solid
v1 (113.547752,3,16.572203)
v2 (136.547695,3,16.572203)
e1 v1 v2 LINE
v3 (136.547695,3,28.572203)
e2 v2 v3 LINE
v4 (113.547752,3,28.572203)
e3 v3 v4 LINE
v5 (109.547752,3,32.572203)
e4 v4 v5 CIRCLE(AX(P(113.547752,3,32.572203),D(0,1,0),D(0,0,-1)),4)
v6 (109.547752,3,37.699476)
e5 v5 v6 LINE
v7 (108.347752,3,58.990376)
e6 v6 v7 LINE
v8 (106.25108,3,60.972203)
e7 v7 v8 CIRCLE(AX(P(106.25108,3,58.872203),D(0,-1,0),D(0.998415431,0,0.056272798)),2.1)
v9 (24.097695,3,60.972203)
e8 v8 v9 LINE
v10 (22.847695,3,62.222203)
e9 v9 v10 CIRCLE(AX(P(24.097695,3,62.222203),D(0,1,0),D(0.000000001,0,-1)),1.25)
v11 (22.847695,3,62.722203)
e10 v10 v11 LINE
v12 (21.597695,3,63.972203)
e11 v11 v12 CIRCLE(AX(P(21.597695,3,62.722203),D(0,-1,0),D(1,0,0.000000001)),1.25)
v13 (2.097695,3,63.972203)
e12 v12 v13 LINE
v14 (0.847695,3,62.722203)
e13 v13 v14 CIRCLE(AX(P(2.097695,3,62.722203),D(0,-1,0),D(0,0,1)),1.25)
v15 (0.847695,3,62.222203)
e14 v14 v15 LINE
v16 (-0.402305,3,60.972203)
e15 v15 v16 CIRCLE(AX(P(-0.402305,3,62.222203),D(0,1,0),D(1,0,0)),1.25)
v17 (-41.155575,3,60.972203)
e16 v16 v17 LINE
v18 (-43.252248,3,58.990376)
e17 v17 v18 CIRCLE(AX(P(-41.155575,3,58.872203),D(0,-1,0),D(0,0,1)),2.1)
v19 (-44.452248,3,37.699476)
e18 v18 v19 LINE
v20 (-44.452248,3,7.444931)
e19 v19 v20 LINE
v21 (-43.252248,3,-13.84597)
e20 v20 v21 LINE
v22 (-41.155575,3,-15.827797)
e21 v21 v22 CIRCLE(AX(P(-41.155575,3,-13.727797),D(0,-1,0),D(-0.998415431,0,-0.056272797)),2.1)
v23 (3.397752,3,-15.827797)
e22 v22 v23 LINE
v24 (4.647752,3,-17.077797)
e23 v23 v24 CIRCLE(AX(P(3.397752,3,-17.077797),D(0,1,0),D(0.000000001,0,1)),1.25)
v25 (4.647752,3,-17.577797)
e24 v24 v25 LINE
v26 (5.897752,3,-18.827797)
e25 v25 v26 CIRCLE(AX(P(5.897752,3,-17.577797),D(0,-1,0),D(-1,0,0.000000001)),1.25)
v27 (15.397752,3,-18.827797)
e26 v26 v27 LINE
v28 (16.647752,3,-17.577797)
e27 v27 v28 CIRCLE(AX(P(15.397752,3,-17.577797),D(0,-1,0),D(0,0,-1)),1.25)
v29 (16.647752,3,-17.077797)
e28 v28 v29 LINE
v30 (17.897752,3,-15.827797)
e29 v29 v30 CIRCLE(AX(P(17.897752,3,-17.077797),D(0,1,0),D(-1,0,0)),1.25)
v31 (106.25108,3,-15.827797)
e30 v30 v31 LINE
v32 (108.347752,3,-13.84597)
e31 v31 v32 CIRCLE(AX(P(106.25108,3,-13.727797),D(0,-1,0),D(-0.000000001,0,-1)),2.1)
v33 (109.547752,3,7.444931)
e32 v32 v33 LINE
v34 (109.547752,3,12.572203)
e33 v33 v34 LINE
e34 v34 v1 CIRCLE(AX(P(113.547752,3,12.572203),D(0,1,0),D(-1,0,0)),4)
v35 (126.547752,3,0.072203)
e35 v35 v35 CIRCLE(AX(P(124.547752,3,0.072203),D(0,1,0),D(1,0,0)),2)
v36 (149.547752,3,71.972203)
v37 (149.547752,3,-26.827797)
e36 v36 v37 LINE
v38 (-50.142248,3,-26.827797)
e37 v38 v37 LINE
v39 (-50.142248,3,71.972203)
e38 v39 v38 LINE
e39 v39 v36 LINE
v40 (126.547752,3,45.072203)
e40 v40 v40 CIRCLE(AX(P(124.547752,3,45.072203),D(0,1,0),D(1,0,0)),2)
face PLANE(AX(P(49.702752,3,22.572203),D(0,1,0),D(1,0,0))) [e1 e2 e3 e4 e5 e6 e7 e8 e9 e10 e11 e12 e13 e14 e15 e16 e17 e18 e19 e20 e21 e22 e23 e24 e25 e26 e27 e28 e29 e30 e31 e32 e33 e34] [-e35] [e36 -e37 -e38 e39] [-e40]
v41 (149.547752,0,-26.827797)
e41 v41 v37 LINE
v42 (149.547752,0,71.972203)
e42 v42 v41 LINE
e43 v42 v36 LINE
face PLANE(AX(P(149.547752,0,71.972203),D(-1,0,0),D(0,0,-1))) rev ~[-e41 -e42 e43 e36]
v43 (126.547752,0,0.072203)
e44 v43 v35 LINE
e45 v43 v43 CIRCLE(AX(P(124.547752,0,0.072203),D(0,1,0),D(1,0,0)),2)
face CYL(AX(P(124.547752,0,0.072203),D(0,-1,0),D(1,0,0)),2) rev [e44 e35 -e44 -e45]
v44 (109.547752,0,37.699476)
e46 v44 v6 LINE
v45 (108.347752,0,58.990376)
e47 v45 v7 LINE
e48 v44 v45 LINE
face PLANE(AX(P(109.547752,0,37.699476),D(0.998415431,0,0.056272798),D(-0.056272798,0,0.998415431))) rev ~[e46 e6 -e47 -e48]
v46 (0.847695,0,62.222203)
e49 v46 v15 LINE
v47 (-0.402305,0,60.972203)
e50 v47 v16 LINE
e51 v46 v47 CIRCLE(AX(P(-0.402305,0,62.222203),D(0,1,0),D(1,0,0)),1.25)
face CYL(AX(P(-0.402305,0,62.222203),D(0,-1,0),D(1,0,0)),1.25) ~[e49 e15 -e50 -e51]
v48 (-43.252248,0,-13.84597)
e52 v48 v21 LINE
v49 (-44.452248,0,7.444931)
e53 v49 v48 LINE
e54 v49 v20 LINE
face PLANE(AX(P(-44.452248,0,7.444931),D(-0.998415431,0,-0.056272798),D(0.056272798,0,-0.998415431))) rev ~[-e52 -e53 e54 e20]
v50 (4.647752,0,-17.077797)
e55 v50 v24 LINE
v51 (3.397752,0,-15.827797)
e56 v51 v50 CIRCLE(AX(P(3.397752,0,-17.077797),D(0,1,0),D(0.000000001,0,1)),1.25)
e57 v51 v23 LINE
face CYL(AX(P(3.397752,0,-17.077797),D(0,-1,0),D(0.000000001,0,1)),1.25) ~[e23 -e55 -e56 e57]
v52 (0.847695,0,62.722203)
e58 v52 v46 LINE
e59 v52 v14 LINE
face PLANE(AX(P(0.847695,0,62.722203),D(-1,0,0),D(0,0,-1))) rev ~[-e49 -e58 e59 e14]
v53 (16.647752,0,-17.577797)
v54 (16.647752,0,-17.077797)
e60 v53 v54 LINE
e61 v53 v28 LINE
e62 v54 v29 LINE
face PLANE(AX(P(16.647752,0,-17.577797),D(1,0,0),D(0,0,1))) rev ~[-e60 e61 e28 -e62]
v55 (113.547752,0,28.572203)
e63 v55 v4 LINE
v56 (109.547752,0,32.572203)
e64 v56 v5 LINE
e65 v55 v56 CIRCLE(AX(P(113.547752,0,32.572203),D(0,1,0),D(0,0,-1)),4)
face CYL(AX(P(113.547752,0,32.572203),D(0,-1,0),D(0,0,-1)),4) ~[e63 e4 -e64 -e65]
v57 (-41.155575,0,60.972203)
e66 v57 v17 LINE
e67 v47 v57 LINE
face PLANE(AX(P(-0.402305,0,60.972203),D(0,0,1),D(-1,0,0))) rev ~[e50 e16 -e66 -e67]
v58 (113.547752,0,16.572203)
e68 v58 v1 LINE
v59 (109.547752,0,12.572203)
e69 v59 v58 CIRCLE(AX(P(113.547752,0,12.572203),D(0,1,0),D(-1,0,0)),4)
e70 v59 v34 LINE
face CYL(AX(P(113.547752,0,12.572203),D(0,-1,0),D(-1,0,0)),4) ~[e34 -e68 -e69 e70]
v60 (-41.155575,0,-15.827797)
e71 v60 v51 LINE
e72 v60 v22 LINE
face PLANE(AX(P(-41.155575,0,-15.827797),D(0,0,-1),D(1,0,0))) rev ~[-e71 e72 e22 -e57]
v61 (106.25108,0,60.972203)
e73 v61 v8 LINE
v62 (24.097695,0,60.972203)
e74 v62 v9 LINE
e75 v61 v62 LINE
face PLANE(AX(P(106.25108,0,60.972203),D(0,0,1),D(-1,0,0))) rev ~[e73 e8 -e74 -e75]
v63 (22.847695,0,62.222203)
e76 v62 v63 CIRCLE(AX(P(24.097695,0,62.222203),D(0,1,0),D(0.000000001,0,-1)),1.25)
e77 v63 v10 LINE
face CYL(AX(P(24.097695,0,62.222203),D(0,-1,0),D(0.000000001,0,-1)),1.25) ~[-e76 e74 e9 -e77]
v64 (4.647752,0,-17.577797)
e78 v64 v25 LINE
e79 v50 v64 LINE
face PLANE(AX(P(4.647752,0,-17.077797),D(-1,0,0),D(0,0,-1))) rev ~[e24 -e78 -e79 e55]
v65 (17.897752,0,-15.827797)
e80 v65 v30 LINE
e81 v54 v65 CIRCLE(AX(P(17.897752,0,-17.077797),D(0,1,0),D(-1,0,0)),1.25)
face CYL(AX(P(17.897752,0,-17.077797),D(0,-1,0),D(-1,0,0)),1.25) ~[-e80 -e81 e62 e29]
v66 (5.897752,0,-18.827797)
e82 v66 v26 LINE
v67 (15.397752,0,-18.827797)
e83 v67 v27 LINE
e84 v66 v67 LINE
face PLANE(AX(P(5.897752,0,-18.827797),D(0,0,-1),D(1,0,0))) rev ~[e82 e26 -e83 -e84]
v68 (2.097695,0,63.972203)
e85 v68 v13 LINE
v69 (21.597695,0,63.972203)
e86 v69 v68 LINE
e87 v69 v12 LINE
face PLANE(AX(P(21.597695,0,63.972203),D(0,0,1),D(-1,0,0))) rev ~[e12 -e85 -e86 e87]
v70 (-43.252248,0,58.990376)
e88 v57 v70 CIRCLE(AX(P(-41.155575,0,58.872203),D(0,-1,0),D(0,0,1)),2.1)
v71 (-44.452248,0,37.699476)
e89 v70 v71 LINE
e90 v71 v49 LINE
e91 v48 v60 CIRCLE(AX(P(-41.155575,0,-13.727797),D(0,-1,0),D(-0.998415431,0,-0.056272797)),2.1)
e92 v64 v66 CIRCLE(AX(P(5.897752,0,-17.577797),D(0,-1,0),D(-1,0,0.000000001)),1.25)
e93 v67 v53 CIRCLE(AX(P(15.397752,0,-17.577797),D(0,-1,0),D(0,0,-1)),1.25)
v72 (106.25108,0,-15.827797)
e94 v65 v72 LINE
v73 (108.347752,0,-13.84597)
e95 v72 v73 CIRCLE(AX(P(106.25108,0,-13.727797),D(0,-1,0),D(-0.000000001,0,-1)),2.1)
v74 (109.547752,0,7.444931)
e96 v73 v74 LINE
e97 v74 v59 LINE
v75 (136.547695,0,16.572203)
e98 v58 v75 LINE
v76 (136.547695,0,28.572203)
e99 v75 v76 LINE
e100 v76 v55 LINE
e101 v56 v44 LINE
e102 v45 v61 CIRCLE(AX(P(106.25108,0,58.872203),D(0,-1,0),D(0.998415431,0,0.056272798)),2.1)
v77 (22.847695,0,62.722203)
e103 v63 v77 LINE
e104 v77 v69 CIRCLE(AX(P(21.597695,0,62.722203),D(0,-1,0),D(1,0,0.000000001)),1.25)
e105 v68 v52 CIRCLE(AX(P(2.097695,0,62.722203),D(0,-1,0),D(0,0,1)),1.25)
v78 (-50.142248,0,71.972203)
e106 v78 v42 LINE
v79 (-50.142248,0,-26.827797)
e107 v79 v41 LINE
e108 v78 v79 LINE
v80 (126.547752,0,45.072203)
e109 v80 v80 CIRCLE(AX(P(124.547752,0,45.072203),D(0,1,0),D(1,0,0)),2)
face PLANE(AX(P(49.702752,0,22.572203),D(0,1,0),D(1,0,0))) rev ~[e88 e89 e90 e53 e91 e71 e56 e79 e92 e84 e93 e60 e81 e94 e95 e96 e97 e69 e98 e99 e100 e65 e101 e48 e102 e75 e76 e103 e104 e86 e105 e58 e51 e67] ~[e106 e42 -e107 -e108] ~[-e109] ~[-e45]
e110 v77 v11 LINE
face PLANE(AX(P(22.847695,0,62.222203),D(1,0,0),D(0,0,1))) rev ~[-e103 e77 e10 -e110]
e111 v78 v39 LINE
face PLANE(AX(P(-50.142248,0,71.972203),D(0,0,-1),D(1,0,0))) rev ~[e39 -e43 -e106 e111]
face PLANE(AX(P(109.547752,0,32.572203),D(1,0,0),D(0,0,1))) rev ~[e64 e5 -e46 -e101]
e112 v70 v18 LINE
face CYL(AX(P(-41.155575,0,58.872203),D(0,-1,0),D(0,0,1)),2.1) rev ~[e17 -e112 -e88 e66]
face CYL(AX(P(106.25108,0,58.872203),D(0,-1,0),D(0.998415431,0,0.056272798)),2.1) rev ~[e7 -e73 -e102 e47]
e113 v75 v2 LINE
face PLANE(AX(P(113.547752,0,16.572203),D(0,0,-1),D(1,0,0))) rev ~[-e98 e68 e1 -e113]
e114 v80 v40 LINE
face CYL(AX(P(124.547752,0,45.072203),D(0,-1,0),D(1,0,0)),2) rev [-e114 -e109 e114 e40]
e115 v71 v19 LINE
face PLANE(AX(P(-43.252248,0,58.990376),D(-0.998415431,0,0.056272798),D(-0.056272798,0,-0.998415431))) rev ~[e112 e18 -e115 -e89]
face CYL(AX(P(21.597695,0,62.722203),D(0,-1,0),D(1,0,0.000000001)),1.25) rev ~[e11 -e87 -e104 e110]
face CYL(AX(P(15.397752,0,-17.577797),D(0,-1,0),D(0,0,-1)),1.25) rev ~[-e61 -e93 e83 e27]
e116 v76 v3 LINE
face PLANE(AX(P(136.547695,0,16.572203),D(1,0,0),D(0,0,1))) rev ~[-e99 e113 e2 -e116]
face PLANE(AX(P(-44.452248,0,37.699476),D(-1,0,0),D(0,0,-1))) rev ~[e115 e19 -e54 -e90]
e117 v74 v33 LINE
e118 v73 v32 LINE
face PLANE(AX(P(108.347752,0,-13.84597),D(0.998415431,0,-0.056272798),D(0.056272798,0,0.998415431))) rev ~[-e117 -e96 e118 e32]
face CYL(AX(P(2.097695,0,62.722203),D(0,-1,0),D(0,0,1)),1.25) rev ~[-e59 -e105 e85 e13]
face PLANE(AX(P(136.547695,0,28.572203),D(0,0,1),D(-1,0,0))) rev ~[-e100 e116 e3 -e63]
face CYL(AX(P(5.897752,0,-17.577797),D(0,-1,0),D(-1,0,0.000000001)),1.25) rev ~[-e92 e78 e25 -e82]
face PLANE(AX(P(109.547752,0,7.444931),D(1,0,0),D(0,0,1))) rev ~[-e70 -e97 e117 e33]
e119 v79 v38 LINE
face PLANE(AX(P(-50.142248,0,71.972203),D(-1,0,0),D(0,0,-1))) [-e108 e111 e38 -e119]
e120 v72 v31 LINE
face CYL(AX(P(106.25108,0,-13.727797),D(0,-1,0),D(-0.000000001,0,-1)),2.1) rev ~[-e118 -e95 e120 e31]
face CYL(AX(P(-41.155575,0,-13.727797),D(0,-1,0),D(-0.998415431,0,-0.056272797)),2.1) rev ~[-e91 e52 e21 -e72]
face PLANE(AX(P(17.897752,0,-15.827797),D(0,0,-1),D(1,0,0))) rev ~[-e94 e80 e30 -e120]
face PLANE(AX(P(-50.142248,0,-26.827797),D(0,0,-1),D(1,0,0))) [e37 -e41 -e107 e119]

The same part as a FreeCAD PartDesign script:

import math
import FreeCAD as App
import Part
import Sketcher

V = App.Vector
Q = App.Units.Quantity

doc = App.newDocument("Part")
body = doc.addObject("PartDesign::Body", "Body")

sketch1 = body.newObject("Sketcher::SketchObject", "Sketch")
sketch1.AttachmentSupport = (doc.getObject("XZ_Plane"), [""])
sketch1.MapMode = "FlatFace"
sketch1.addGeometry(Part.LineSegment(V(-50.142248, -26.827797, 0), V(-50.142248, 71.972203, 0)), False)
sketch1.addGeometry(Part.LineSegment(V(-50.142248, 71.972203, 0), V(149.547752, 71.972203, 0)), False)
sketch1.addGeometry(Part.LineSegment(V(149.547752, 71.972203, 0), V(149.547752, -26.827797, 0)), False)
sketch1.addGeometry(Part.LineSegment(V(149.547752, -26.827797, 0), V(-50.142248, -26.827797, 0)), False)
sketch1.addGeometry(Part.Circle(V(124.547752, 45.072203, 0), V(0, 0, 1), 2), False)
sketch1.addGeometry(Part.ArcOfCircle(Part.Circle(V(-41.155575, -13.727797, 0), V(0, 0, 1), 2.1), math.radians(-176.774102), math.radians(-90)), False)
sketch1.addGeometry(Part.LineSegment(V(-41.155575, -15.827797, 0), V(3.397752, -15.827797, 0)), False)
sketch1.addGeometry(Part.ArcOfCircle(Part.Circle(V(3.397752, -17.077797, 0), V(0, 0, 1), 1.25), math.radians(0), math.radians(90)), False)
sketch1.addGeometry(Part.LineSegment(V(4.647752, -17.077797, 0), V(4.647752, -17.577797, 0)), False)
sketch1.addGeometry(Part.ArcOfCircle(Part.Circle(V(5.897752, -17.577797, 0), V(0, 0, 1), 1.25), math.radians(180), math.radians(270)), False)
sketch1.addGeometry(Part.LineSegment(V(5.897752, -18.827797, 0), V(15.397752, -18.827797, 0)), False)
sketch1.addGeometry(Part.ArcOfCircle(Part.Circle(V(15.397752, -17.577797, 0), V(0, 0, 1), 1.25), math.radians(-90), math.radians(0)), False)
sketch1.addGeometry(Part.LineSegment(V(16.647752, -17.577797, 0), V(16.647752, -17.077797, 0)), False)
sketch1.addGeometry(Part.ArcOfCircle(Part.Circle(V(17.897752, -17.077797, 0), V(0, 0, 1), 1.25), math.radians(90), math.radians(180)), False)
sketch1.addGeometry(Part.LineSegment(V(17.897752, -15.827797, 0), V(106.25108, -15.827797, 0)), False)
sketch1.addGeometry(Part.ArcOfCircle(Part.Circle(V(106.25108, -13.727797, 0), V(0, 0, 1), 2.1), math.radians(-90), math.radians(-3.225898)), False)
sketch1.addGeometry(Part.LineSegment(V(108.347752, -13.84597, 0), V(109.547752, 7.444931, 0)), False)
sketch1.addGeometry(Part.LineSegment(V(109.547752, 7.444931, 0), V(109.547752, 12.572203, 0)), False)
sketch1.addGeometry(Part.ArcOfCircle(Part.Circle(V(113.547752, 12.572203, 0), V(0, 0, 1), 4), math.radians(90), math.radians(180)), False)
sketch1.addGeometry(Part.LineSegment(V(113.547752, 16.572203, 0), V(136.547695, 16.572203, 0)), False)
sketch1.addGeometry(Part.LineSegment(V(136.547695, 16.572203, 0), V(136.547695, 28.572203, 0)), False)
sketch1.addGeometry(Part.LineSegment(V(136.547695, 28.572203, 0), V(113.547752, 28.572203, 0)), False)
sketch1.addGeometry(Part.ArcOfCircle(Part.Circle(V(113.547752, 32.572203, 0), V(0, 0, 1), 4), math.radians(180), math.radians(270)), False)
sketch1.addGeometry(Part.LineSegment(V(109.547752, 32.572203, 0), V(109.547752, 37.699476, 0)), False)
sketch1.addGeometry(Part.LineSegment(V(109.547752, 37.699476, 0), V(108.347752, 58.990376, 0)), False)
sketch1.addGeometry(Part.ArcOfCircle(Part.Circle(V(106.25108, 58.872203, 0), V(0, 0, 1), 2.1), math.radians(3.225898), math.radians(90)), False)
sketch1.addGeometry(Part.LineSegment(V(106.25108, 60.972203, 0), V(24.097695, 60.972203, 0)), False)
sketch1.addGeometry(Part.ArcOfCircle(Part.Circle(V(24.097695, 62.222203, 0), V(0, 0, 1), 1.25), math.radians(180), math.radians(270)), False)
sketch1.addGeometry(Part.LineSegment(V(22.847695, 62.222203, 0), V(22.847695, 62.722203, 0)), False)
sketch1.addGeometry(Part.ArcOfCircle(Part.Circle(V(21.597695, 62.722203, 0), V(0, 0, 1), 1.25), math.radians(0), math.radians(90)), False)
sketch1.addGeometry(Part.LineSegment(V(21.597695, 63.972203, 0), V(2.097695, 63.972203, 0)), False)
sketch1.addGeometry(Part.ArcOfCircle(Part.Circle(V(2.097695, 62.722203, 0), V(0, 0, 1), 1.25), math.radians(90), math.radians(180)), False)
sketch1.addGeometry(Part.LineSegment(V(0.847695, 62.722203, 0), V(0.847695, 62.222203, 0)), False)
sketch1.addGeometry(Part.ArcOfCircle(Part.Circle(V(-0.402305, 62.222203, 0), V(0, 0, 1), 1.25), math.radians(-90), math.radians(0)), False)
sketch1.addGeometry(Part.LineSegment(V(-0.402305, 60.972203, 0), V(-41.155575, 60.972203, 0)), False)
sketch1.addGeometry(Part.ArcOfCircle(Part.Circle(V(-41.155575, 58.872203, 0), V(0, 0, 1), 2.1), math.radians(90), math.radians(176.774102)), False)
sketch1.addGeometry(Part.LineSegment(V(-43.252248, 58.990376, 0), V(-44.452248, 37.699476, 0)), False)
sketch1.addGeometry(Part.LineSegment(V(-44.452248, 37.699476, 0), V(-44.452248, 7.444931, 0)), False)
sketch1.addGeometry(Part.LineSegment(V(-44.452248, 7.444931, 0), V(-43.252248, -13.84597, 0)), False)
sketch1.addGeometry(Part.Circle(V(124.547752, 0.072203, 0), V(0, 0, 1), 2), False)
sketch1.addConstraint(Sketcher.Constraint("Coincident", 0, 2, 1, 1))
sketch1.addConstraint(Sketcher.Constraint("Coincident", 1, 2, 2, 1))
sketch1.addConstraint(Sketcher.Constraint("Coincident", 2, 2, 3, 1))
sketch1.addConstraint(Sketcher.Constraint("Coincident", 3, 2, 0, 1))
sketch1.addConstraint(Sketcher.Constraint("Tangent", 5, 2, 6, 1))
sketch1.addConstraint(Sketcher.Constraint("Tangent", 6, 2, 7, 2))
sketch1.addConstraint(Sketcher.Constraint("Tangent", 7, 1, 8, 1))
sketch1.addConstraint(Sketcher.Constraint("Tangent", 8, 2, 9, 1))
sketch1.addConstraint(Sketcher.Constraint("Tangent", 9, 2, 10, 1))
sketch1.addConstraint(Sketcher.Constraint("Tangent", 10, 2, 11, 1))
sketch1.addConstraint(Sketcher.Constraint("Tangent", 11, 2, 12, 1))
sketch1.addConstraint(Sketcher.Constraint("Tangent", 12, 2, 13, 2))
sketch1.addConstraint(Sketcher.Constraint("Tangent", 13, 1, 14, 1))
sketch1.addConstraint(Sketcher.Constraint("Tangent", 14, 2, 15, 1))
sketch1.addConstraint(Sketcher.Constraint("Tangent", 15, 2, 16, 1))
sketch1.addConstraint(Sketcher.Constraint("Coincident", 16, 2, 17, 1))
sketch1.addConstraint(Sketcher.Constraint("Tangent", 17, 2, 18, 2))
sketch1.addConstraint(Sketcher.Constraint("Tangent", 18, 1, 19, 1))
sketch1.addConstraint(Sketcher.Constraint("Coincident", 19, 2, 20, 1))
sketch1.addConstraint(Sketcher.Constraint("Coincident", 20, 2, 21, 1))
sketch1.addConstraint(Sketcher.Constraint("Tangent", 21, 2, 22, 2))
sketch1.addConstraint(Sketcher.Constraint("Tangent", 22, 1, 23, 1))
sketch1.addConstraint(Sketcher.Constraint("Coincident", 23, 2, 24, 1))
sketch1.addConstraint(Sketcher.Constraint("Tangent", 24, 2, 25, 1))
sketch1.addConstraint(Sketcher.Constraint("Tangent", 25, 2, 26, 1))
sketch1.addConstraint(Sketcher.Constraint("Tangent", 26, 2, 27, 2))
sketch1.addConstraint(Sketcher.Constraint("Tangent", 27, 1, 28, 1))
sketch1.addConstraint(Sketcher.Constraint("Tangent", 28, 2, 29, 1))
sketch1.addConstraint(Sketcher.Constraint("Tangent", 29, 2, 30, 1))
sketch1.addConstraint(Sketcher.Constraint("Tangent", 30, 2, 31, 1))
sketch1.addConstraint(Sketcher.Constraint("Tangent", 31, 2, 32, 1))
sketch1.addConstraint(Sketcher.Constraint("Tangent", 32, 2, 33, 2))
sketch1.addConstraint(Sketcher.Constraint("Tangent", 33, 1, 34, 1))
sketch1.addConstraint(Sketcher.Constraint("Tangent", 34, 2, 35, 1))
sketch1.addConstraint(Sketcher.Constraint("Tangent", 35, 2, 36, 1))
sketch1.addConstraint(Sketcher.Constraint("Coincident", 36, 2, 37, 1))
sketch1.addConstraint(Sketcher.Constraint("Coincident", 37, 2, 38, 1))
sketch1.addConstraint(Sketcher.Constraint("Tangent", 38, 2, 5, 1))
sketch1.addConstraint(Sketcher.Constraint("Vertical", 0))
sketch1.addConstraint(Sketcher.Constraint("Horizontal", 1))
sketch1.addConstraint(Sketcher.Constraint("Vertical", 2))
sketch1.addConstraint(Sketcher.Constraint("Horizontal", 3))
sketch1.addConstraint(Sketcher.Constraint("Horizontal", 6))
sketch1.addConstraint(Sketcher.Constraint("Vertical", 8))
sketch1.addConstraint(Sketcher.Constraint("Horizontal", 10))
sketch1.addConstraint(Sketcher.Constraint("Vertical", 12))
sketch1.addConstraint(Sketcher.Constraint("Horizontal", 14))
sketch1.addConstraint(Sketcher.Constraint("Vertical", 17))
sketch1.addConstraint(Sketcher.Constraint("Horizontal", 19))
sketch1.addConstraint(Sketcher.Constraint("Vertical", 20))
sketch1.addConstraint(Sketcher.Constraint("Horizontal", 21))
sketch1.addConstraint(Sketcher.Constraint("Vertical", 23))
sketch1.addConstraint(Sketcher.Constraint("Horizontal", 26))
sketch1.addConstraint(Sketcher.Constraint("Vertical", 28))
sketch1.addConstraint(Sketcher.Constraint("Horizontal", 30))
sketch1.addConstraint(Sketcher.Constraint("Vertical", 32))
sketch1.addConstraint(Sketcher.Constraint("Horizontal", 34))
sketch1.addConstraint(Sketcher.Constraint("Vertical", 37))
sketch1.addConstraint(Sketcher.Constraint("Equal", 7, 9))
sketch1.addConstraint(Sketcher.Constraint("Equal", 9, 11))
sketch1.addConstraint(Sketcher.Constraint("Equal", 11, 13))
sketch1.addConstraint(Sketcher.Constraint("Equal", 5, 15))
sketch1.addConstraint(Sketcher.Constraint("Equal", 18, 22))
sketch1.addConstraint(Sketcher.Constraint("Equal", 15, 25))
sketch1.addConstraint(Sketcher.Constraint("Equal", 13, 27))
sketch1.addConstraint(Sketcher.Constraint("Equal", 27, 29))
sketch1.addConstraint(Sketcher.Constraint("Equal", 29, 31))
sketch1.addConstraint(Sketcher.Constraint("Equal", 31, 33))
sketch1.addConstraint(Sketcher.Constraint("Equal", 25, 35))
sketch1.addConstraint(Sketcher.Constraint("Equal", 4, 39))
sketch1.addConstraint(Sketcher.Constraint("Parallel", 16, 36))
sketch1.addConstraint(Sketcher.Constraint("Parallel", 24, 38))
sketch1.addConstraint(Sketcher.Constraint("Horizontal", 7, 3, 13, 3))
sketch1.addConstraint(Sketcher.Constraint("Horizontal", 27, 3, 33, 3))
sketch1.addConstraint(Sketcher.Constraint("Horizontal", 24, 2, 35, 2))
sketch1.addConstraint(Sketcher.Constraint("Horizontal", 23, 2, 36, 2))
sketch1.addConstraint(Sketcher.Constraint("Horizontal", 16, 2, 37, 2))
sketch1.addConstraint(Sketcher.Constraint("Vertical", 18, 3, 22, 3))
sketch1.addConstraint(Sketcher.Constraint("Vertical", 15, 3, 25, 3))
sketch1.addConstraint(Sketcher.Constraint("Vertical", 4, 3, 39, 3))
sketch1.addConstraint(Sketcher.Constraint("Equal", 17, 23))
sketch1.addConstraint(Sketcher.Constraint("Equal", 12, 28))
sketch1.addConstraint(Sketcher.Constraint("Diameter", 4, Q("4 mm")))
sketch1.addConstraint(Sketcher.Constraint("Radius", 18, Q("4 mm")))
sketch1.addConstraint(Sketcher.Constraint("Radius", 5, Q("2.1 mm")))
sketch1.addConstraint(Sketcher.Constraint("DistanceY", 20, 1, 20, 2, Q("12 mm")))
sketch1.addConstraint(Sketcher.Constraint("Radius", 7, Q("1.25 mm")))
sketch1.addConstraint(Sketcher.Constraint("DistanceX", 10, 1, 10, 2, Q("9.5 mm")))
sketch1.addConstraint(Sketcher.Constraint("DistanceX", 30, 2, 30, 1, Q("19.5 mm")))
sketch1.addConstraint(Sketcher.Constraint("DistanceY", 0, 1, 0, 2, Q("98.8 mm")))
sketch1.addConstraint(Sketcher.Constraint("DistanceY", 8, 2, 8, 1, Q("0.5 mm")))
sketch1.addConstraint(Sketcher.Constraint("DistanceX", 18, 3, 4, 3, Q("11 mm")))
sketch1.addConstraint(Sketcher.Constraint("DistanceY", 39, 3, 4, 3, Q("45 mm")))
sketch1.addConstraint(Sketcher.Constraint("DistanceX", 4, 3, 1, 2, Q("25 mm")))
sketch1.addConstraint(Sketcher.Constraint("DistanceY", 3, 2, 5, 2, Q("11 mm")))
sketch1.addConstraint(Sketcher.Constraint("DistanceY", 34, 2, 0, 2, Q("11 mm")))
sketch1.addConstraint(Sketcher.Constraint("DistanceX", 1, 1, 1, 2, Q("199.69 mm")))
sketch1.addConstraint(Sketcher.Constraint("DistanceY", 5, 3, 4, 3, Q("58.8 mm")))
sketch1.addConstraint(Sketcher.Constraint("DistanceX", 15, 2, 39, 3, Q("16.2 mm")))
sketch1.addConstraint(Sketcher.Constraint("DistanceX", 7, 3, 4, 3, Q("121.15 mm")))
sketch1.addConstraint(Sketcher.Constraint("DistanceX", 0, 2, 35, 2, Q("6.89 mm")))
sketch1.addConstraint(Sketcher.Constraint("DistanceX", 34, 2, 34, 1, Q("40.75327 mm")))
sketch1.addConstraint(Sketcher.Constraint("DistanceY", 15, 2, 16, 2, Q("21.2909 mm")))
sketch1.addConstraint(Sketcher.Constraint("DistanceX", 19, 1, 19, 2, Q("22.999943 mm")))
sketch1.addConstraint(Sketcher.Constraint("DistanceX", -1, 1, 15, 3, Q("106.25108 mm")))
sketch1.addConstraint(Sketcher.Constraint("DistanceY", 15, 2, -1, 1, Q("13.84597 mm")))
pad1 = body.newObject("PartDesign::Pad", "Pad")
pad1.Profile = sketch1
pad1.Length = 3
pad1.Reversed = True

doc.recompute()
